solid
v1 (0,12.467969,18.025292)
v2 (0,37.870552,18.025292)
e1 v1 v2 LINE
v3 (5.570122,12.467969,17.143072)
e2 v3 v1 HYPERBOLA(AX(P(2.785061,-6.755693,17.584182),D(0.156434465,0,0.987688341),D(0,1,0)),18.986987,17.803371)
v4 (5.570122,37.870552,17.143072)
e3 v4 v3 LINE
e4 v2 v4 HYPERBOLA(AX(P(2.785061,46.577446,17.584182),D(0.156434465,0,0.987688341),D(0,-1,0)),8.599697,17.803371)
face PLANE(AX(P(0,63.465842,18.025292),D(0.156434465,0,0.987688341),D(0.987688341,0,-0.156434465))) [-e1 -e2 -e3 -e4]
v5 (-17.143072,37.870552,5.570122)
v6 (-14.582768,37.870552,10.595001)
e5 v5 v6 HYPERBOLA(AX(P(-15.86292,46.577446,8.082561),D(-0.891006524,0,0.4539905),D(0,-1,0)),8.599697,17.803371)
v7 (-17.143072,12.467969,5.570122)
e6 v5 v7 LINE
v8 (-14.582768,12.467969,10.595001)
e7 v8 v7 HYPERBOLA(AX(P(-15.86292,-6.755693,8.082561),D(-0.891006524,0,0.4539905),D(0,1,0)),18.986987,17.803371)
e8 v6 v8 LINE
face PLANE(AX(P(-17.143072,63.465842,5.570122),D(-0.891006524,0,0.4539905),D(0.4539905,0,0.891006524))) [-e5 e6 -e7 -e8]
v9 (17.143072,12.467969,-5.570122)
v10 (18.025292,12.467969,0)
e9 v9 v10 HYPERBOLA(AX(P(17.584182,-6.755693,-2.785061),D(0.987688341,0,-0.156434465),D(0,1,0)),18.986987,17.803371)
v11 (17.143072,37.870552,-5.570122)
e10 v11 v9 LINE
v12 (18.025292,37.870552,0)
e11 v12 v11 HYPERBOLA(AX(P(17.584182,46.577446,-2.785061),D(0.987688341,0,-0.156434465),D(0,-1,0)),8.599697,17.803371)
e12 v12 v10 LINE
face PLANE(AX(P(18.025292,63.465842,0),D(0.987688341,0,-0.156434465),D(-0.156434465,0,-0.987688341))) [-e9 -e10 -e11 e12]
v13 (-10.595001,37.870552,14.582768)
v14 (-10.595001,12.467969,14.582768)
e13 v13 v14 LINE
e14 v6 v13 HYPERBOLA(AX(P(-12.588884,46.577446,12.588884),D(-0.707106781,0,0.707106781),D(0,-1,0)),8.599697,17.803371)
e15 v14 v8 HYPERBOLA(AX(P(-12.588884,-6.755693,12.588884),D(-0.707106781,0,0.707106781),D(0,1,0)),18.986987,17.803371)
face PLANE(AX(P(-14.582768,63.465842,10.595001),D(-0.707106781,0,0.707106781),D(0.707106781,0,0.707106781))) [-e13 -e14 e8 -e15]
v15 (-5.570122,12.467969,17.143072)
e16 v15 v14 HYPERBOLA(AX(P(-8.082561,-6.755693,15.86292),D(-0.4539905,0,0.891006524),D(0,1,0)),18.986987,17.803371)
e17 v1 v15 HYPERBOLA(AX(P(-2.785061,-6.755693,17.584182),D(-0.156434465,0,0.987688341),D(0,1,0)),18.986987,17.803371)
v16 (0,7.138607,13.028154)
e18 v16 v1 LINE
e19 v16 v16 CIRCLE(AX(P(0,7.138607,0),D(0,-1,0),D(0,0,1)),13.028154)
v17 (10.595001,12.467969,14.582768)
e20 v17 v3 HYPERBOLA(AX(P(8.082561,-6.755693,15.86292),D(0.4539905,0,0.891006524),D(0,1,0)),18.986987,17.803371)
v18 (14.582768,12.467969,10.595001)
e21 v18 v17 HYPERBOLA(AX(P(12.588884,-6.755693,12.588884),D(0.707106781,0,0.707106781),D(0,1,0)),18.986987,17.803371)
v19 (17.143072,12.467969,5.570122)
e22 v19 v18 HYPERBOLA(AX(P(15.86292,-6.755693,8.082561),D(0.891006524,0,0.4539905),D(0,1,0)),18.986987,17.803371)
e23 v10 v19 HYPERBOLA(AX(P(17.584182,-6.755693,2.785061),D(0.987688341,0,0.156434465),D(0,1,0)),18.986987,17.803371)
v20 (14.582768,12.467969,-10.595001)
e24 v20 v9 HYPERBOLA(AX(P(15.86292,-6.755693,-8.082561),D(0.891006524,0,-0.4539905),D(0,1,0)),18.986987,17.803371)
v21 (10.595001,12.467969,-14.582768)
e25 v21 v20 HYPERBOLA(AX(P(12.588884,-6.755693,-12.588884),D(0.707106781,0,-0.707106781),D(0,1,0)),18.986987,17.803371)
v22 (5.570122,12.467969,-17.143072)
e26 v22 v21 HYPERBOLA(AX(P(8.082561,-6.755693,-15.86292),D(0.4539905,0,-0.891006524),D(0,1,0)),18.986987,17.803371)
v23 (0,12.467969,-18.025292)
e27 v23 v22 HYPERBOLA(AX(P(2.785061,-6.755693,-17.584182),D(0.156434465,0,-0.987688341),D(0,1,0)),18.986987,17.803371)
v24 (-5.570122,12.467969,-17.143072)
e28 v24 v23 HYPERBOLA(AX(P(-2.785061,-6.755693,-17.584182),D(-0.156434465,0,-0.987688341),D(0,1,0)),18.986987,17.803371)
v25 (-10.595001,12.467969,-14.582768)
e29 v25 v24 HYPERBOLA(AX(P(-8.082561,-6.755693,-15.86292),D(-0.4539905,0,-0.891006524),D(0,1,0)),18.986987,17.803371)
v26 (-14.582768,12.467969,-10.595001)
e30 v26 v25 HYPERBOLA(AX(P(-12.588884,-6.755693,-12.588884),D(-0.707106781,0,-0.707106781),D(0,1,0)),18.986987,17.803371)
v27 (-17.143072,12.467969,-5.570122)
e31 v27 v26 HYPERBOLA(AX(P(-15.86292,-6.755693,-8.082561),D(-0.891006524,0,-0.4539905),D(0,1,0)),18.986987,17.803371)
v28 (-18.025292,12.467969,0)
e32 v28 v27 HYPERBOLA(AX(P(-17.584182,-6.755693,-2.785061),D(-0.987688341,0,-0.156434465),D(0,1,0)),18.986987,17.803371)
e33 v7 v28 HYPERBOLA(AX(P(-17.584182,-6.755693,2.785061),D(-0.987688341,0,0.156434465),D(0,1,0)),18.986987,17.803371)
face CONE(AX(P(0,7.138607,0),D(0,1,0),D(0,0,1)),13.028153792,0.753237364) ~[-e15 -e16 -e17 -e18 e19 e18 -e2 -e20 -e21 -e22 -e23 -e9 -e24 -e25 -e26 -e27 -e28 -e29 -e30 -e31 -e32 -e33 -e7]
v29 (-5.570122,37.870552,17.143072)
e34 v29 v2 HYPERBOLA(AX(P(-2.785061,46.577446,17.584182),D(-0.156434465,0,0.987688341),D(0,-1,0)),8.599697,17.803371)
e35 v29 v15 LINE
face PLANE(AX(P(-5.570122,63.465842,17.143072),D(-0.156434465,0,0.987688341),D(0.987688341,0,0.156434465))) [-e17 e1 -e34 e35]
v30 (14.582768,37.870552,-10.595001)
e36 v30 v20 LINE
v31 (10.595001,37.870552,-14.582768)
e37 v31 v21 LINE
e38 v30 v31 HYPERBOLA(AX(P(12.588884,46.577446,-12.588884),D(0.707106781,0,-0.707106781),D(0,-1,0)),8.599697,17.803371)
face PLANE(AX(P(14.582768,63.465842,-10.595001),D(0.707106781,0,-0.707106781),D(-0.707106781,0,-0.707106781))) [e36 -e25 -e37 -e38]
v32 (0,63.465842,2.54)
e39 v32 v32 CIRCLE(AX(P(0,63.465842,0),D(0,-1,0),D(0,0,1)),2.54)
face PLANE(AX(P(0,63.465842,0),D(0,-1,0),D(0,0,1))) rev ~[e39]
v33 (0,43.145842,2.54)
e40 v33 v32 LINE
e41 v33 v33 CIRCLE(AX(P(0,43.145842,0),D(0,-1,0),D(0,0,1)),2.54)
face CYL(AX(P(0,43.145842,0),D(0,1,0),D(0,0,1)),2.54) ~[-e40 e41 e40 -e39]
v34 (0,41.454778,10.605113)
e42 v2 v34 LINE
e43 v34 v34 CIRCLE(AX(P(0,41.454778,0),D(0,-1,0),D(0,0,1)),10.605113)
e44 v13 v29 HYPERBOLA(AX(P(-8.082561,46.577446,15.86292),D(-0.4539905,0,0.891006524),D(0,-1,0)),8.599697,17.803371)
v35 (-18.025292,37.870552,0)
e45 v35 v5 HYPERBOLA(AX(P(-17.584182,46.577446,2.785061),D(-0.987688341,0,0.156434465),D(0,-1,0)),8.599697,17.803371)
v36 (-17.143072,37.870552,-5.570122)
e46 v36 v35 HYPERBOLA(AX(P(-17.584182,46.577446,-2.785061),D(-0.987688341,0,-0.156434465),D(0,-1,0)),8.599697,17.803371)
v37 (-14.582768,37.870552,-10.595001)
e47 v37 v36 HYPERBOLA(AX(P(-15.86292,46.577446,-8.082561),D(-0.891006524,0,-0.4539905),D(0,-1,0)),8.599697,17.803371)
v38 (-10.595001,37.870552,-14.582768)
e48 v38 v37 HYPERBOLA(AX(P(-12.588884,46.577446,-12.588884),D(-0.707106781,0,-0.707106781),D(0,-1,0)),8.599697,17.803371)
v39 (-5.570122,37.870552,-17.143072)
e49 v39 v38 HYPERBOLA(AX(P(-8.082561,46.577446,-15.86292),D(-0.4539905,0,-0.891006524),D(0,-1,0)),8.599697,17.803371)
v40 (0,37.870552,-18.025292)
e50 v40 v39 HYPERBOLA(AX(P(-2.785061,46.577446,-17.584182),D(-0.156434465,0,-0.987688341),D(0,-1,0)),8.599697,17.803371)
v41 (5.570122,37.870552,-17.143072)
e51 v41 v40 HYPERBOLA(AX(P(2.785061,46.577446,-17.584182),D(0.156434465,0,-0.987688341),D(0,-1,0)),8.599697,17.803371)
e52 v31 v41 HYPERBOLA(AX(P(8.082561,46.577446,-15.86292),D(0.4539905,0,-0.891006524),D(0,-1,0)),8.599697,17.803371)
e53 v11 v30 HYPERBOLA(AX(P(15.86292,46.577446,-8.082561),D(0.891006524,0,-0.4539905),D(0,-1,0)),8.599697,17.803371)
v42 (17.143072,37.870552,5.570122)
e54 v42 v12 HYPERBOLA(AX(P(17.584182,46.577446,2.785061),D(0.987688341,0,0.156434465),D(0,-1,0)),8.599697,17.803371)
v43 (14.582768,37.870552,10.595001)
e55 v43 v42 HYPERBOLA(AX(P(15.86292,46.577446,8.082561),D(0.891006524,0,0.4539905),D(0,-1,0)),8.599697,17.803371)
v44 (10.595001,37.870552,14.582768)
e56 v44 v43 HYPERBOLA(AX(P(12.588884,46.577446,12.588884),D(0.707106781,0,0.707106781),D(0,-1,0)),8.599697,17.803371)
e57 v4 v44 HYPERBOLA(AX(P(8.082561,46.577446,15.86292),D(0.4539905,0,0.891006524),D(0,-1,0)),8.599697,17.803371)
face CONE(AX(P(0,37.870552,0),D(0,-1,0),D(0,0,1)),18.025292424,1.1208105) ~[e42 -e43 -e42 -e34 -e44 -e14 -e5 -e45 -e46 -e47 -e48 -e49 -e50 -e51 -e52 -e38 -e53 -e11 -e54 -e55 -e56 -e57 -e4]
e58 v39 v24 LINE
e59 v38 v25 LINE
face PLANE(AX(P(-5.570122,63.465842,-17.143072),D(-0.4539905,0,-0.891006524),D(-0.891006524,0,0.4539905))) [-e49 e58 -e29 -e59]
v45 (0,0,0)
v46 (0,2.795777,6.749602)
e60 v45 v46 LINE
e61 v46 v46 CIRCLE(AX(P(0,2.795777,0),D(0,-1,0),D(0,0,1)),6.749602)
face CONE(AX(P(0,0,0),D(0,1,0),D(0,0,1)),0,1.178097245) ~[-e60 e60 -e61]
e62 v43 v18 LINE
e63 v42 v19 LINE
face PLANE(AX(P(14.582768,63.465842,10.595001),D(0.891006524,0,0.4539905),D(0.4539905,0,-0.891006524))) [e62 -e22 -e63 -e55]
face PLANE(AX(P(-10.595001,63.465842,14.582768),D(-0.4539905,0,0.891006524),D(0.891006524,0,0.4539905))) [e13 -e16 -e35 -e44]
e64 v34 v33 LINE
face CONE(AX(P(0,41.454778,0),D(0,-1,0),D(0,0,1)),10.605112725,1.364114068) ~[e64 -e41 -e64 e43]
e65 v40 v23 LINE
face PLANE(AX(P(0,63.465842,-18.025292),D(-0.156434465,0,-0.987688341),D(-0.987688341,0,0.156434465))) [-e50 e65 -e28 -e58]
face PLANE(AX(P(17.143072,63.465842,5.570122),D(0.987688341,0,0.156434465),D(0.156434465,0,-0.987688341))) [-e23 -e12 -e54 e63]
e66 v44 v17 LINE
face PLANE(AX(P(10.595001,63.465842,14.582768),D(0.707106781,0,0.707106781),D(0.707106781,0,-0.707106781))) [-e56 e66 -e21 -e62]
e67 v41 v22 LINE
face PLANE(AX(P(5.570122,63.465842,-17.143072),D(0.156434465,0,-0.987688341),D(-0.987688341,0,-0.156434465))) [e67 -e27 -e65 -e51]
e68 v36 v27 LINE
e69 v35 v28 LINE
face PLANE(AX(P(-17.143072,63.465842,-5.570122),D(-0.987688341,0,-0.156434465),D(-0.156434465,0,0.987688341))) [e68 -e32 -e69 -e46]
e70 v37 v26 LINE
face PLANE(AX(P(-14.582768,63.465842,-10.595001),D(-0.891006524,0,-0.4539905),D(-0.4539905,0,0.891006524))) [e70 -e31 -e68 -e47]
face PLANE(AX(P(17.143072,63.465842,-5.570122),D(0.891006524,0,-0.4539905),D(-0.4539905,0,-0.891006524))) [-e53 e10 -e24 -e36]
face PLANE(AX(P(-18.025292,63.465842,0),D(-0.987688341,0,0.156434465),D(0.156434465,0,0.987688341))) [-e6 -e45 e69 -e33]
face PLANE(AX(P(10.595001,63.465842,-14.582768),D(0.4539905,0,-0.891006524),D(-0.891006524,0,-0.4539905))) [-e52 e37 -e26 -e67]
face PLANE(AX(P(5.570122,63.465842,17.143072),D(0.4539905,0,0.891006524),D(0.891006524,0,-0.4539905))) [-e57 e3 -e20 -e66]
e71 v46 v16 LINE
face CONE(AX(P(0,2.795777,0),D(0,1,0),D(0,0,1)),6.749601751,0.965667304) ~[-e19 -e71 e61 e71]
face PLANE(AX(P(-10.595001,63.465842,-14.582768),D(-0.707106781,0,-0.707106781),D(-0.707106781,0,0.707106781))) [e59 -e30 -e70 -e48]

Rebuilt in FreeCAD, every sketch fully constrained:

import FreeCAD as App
import Part
import Sketcher
from FreeCAD import Vector
Q = App.Units.Quantity

doc = App.newDocument("Part")
body = doc.addObject("PartDesign::Body", "Body")

# Sketch on XY plane
sketch1 = body.newObject("Sketcher::SketchObject", "Sketch")
sketch1.AttachmentSupport = (doc.getObject("XY_Plane"), [""])
sketch1.MapMode = "FlatFace"
sketch1.addGeometry(Part.LineSegment(Vector(0, 0, 0), Vector(6.749602, 2.795777, 0)), False)
sketch1.addGeometry(Part.LineSegment(Vector(6.749602, 2.795777, 0), Vector(13.028154, 7.138607, 0)), False)
sketch1.addGeometry(Part.LineSegment(Vector(13.028154, 7.138607, 0), Vector(18.025292, 12.467969, 0)), False)
sketch1.addGeometry(Part.LineSegment(Vector(18.025292, 12.467969, 0), Vector(18.025292, 37.870552, 0)), False)
sketch1.addGeometry(Part.LineSegment(Vector(18.025292, 37.870552, 0), Vector(10.605113, 41.454778, 0)), False)
sketch1.addGeometry(Part.LineSegment(Vector(10.605113, 41.454778, 0), Vector(2.54, 43.145842, 0)), False)
sketch1.addGeometry(Part.LineSegment(Vector(2.54, 43.145842, 0), Vector(2.54, 63.465842, 0)), False)
sketch1.addGeometry(Part.LineSegment(Vector(2.54, 63.465842, 0), Vector(0, 63.465842, 0)), False)
sketch1.addGeometry(Part.LineSegment(Vector(0, 63.465842, 0), Vector(0, 0, 0)), False)
sketch1.addConstraint(Sketcher.Constraint("Coincident", 0, 2, 1, 1))
sketch1.addConstraint(Sketcher.Constraint("Coincident", 1, 2, 2, 1))
sketch1.addConstraint(Sketcher.Constraint("Coincident", 2, 2, 3, 1))
sketch1.addConstraint(Sketcher.Constraint("Coincident", 3, 2, 4, 1))
sketch1.addConstraint(Sketcher.Constraint("Coincident", 4, 2, 5, 1))
sketch1.addConstraint(Sketcher.Constraint("Coincident", 5, 2, 6, 1))
sketch1.addConstraint(Sketcher.Constraint("Coincident", 6, 2, 7, 1))
sketch1.addConstraint(Sketcher.Constraint("Coincident", 7, 2, 8, 1))
sketch1.addConstraint(Sketcher.Constraint("Coincident", 8, 2, 0, 1))
sketch1.addConstraint(Sketcher.Constraint("Vertical", 3))
sketch1.addConstraint(Sketcher.Constraint("Vertical", 6))
sketch1.addConstraint(Sketcher.Constraint("Horizontal", 7))
sketch1.addConstraint(Sketcher.Constraint("Vertical", 8))
sketch1.addConstraint(Sketcher.Constraint("Coincident", 8, 2, -1, 1))
sketch1.addConstraint(Sketcher.Constraint("Equal", 0, 2))
sketch1.addConstraint(Sketcher.Constraint("Equal", 4, 5))
sketch1.addConstraint(Sketcher.Constraint("DistanceX", 7, 2, 7, 1, Q("0.1 in")))
sketch1.addConstraint(Sketcher.Constraint("DistanceY", 6, 1, 6, 2, Q("0.8 in")))
sketch1.addConstraint(Sketcher.Constraint("Angle", 0, Q("22.5 deg")))
sketch1.addConstraint(Sketcher.Constraint("DistanceY", 8, 2, 8, 1, Q("63.465842 mm")))
sketch1.addConstraint(Sketcher.Constraint("DistanceX", -1, 1, 0, 2, Q("6.749602 mm")))
sketch1.addConstraint(Sketcher.Constraint("DistanceY", 0, 2, 4, 2, Q("38.659001 mm")))
sketch1.addConstraint(Sketcher.Constraint("Distance", 1, Q("7.63416 mm")))
sketch1.addConstraint(Sketcher.Constraint("DistanceY", 3, 1, 3, 2, Q("25.402583 mm")))
sketch1.addConstraint(Sketcher.Constraint("DistanceY", -1, 1, 2, 2, Q("12.467969 mm")))
sketch1.addConstraint(Sketcher.Constraint("DistanceY", 0, 2, 1, 2, Q("4.342831 mm")))
revolution = body.newObject("PartDesign::Revolution", "Revolution")
revolution.Profile = sketch1
revolution.ReferenceAxis = (sketch1, ["V_Axis"])
revolution.Angle = 360

# Sketch on XZ plane
sketch2 = body.newObject("Sketcher::SketchObject", "Sketch001")
sketch2.AttachmentSupport = (doc.getObject("XZ_Plane"), [""])
sketch2.MapMode = "FlatFace"
sketch2.AttachmentOffset = App.Placement(Vector(0, 0, -63.465842), App.Rotation())
sketch2.addGeometry(Part.LineSegment(Vector(-27.166, -27.166, 0), Vector(-27.166, 27.166, 0)), False)
sketch2.addGeometry(Part.LineSegment(Vector(-27.166, 27.166, 0), Vector(27.166, 27.166, 0)), False)
sketch2.addGeometry(Part.LineSegment(Vector(27.166, 27.166, 0), Vector(27.166, -27.166, 0)), False)
sketch2.addGeometry(Part.LineSegment(Vector(27.166, -27.166, 0), Vector(-27.166, -27.166, 0)), False)
sketch2.addGeometry(Part.LineSegment(Vector(-14.582768, -10.595001, 0), Vector(-10.595001, -14.582768, 0)), False)
sketch2.addGeometry(Part.LineSegment(Vector(-10.595001, -14.582768, 0), Vector(-5.570122, -17.143072, 0)), False)
sketch2.addGeometry(Part.LineSegment(Vector(-5.570122, -17.143072, 0), Vector(0, -18.025292, 0)), False)
sketch2.addGeometry(Part.LineSegment(Vector(0, -18.025292, 0), Vector(5.570122, -17.143072, 0)), False)
sketch2.addGeometry(Part.LineSegment(Vector(5.570122, -17.143072, 0), Vector(10.595001, -14.582768, 0)), False)
sketch2.addGeometry(Part.LineSegment(Vector(10.595001, -14.582768, 0), Vector(14.582768, -10.595001, 0)), False)
sketch2.addGeometry(Part.LineSegment(Vector(14.582768, -10.595001, 0), Vector(17.143072, -5.570122, 0)), False)
sketch2.addGeometry(Part.LineSegment(Vector(17.143072, -5.570122, 0), Vector(18.025292, 0, 0)), False)
sketch2.addGeometry(Part.LineSegment(Vector(18.025292, 0, 0), Vector(17.143072, 5.570122, 0)), False)
sketch2.addGeometry(Part.LineSegment(Vector(17.143072, 5.570122, 0), Vector(14.582768, 10.595001, 0)), False)
sketch2.addGeometry(Part.LineSegment(Vector(14.582768, 10.595001, 0), Vector(10.595001, 14.582768, 0)), False)
sketch2.addGeometry(Part.LineSegment(Vector(10.595001, 14.582768, 0), Vector(5.570122, 17.143072, 0)), False)
sketch2.addGeometry(Part.LineSegment(Vector(5.570122, 17.143072, 0), Vector(0, 18.025292, 0)), False)
sketch2.addGeometry(Part.LineSegment(Vector(0, 18.025292, 0), Vector(-5.570122, 17.143072, 0)), False)
sketch2.addGeometry(Part.LineSegment(Vector(-5.570122, 17.143072, 0), Vector(-10.595001, 14.582768, 0)), False)
sketch2.addGeometry(Part.LineSegment(Vector(-10.595001, 14.582768, 0), Vector(-14.582768, 10.595001, 0)), False)
sketch2.addGeometry(Part.LineSegment(Vector(-14.582768, 10.595001, 0), Vector(-17.143072, 5.570122, 0)), False)
sketch2.addGeometry(Part.LineSegment(Vector(-17.143072, 5.570122, 0), Vector(-18.025292, 0, 0)), False)
sketch2.addGeometry(Part.LineSegment(Vector(-18.025292, 0, 0), Vector(-17.143072, -5.570122, 0)), False)
sketch2.addGeometry(Part.LineSegment(Vector(-17.143072, -5.570122, 0), Vector(-14.582768, -10.595001, 0)), False)
sketch2.addConstraint(Sketcher.Constraint("Coincident", 0, 2, 1, 1))
sketch2.addConstraint(Sketcher.Constraint("Coincident", 1, 2, 2, 1))
sketch2.addConstraint(Sketcher.Constraint("Coincident", 2, 2, 3, 1))
sketch2.addConstraint(Sketcher.Constraint("Coincident", 3, 2, 0, 1))
sketch2.addConstraint(Sketcher.Constraint("Coincident", 4, 2, 5, 1))
sketch2.addConstraint(Sketcher.Constraint("Coincident", 5, 2, 6, 1))
sketch2.addConstraint(Sketcher.Constraint("Coincident", 6, 2, 7, 1))
sketch2.addConstraint(Sketcher.Constraint("Coincident", 7, 2, 8, 1))
sketch2.addConstraint(Sketcher.Constraint("Coincident", 8, 2, 9, 1))
sketch2.addConstraint(Sketcher.Constraint("Coincident", 9, 2, 10, 1))
sketch2.addConstraint(Sketcher.Constraint("Coincident", 10, 2, 11, 1))
sketch2.addConstraint(Sketcher.Constraint("Coincident", 11, 2, 12, 1))
sketch2.addConstraint(Sketcher.Constraint("Coincident", 12, 2, 13, 1))
sketch2.addConstraint(Sketcher.Constraint("Coincident", 13, 2, 14, 1))
sketch2.addConstraint(Sketcher.Constraint("Coincident", 14, 2, 15, 1))
sketch2.addConstraint(Sketcher.Constraint("Coincident", 15, 2, 16, 1))
sketch2.addConstraint(Sketcher.Constraint("Coincident", 16, 2, 17, 1))
sketch2.addConstraint(Sketcher.Constraint("Coincident", 17, 2, 18, 1))
sketch2.addConstraint(Sketcher.Constraint("Coincident", 18, 2, 19, 1))
sketch2.addConstraint(Sketcher.Constraint("Coincident", 19, 2, 20, 1))
sketch2.addConstraint(Sketcher.Constraint("Coincident", 20, 2, 21, 1))
sketch2.addConstraint(Sketcher.Constraint("Coincident", 21, 2, 22, 1))
sketch2.addConstraint(Sketcher.Constraint("Coincident", 22, 2, 23, 1))
sketch2.addConstraint(Sketcher.Constraint("Coincident", 23, 2, 4, 1))
sketch2.addConstraint(Sketcher.Constraint("Vertical", 0))
sketch2.addConstraint(Sketcher.Constraint("Horizontal", 1))
sketch2.addConstraint(Sketcher.Constraint("Vertical", 2))
sketch2.addConstraint(Sketcher.Constraint("Horizontal", 3))
sketch2.addConstraint(Sketcher.Constraint("Symmetric", 0, 2, 2, 2, -1, 1))
sketch2.addConstraint(Sketcher.Constraint("Symmetric", 4, 2, 14, 2, -1, 1))
sketch2.addConstraint(Sketcher.Constraint("Symmetric", 5, 2, 15, 2, -1, 1))
sketch2.addConstraint(Sketcher.Constraint("Symmetric", 6, 2, 16, 2, -1, 1))
sketch2.addConstraint(Sketcher.Constraint("Symmetric", 7, 2, 17, 2, -1, 1))
sketch2.addConstraint(Sketcher.Constraint("Symmetric", 8, 2, 18, 2, -1, 1))
sketch2.addConstraint(Sketcher.Constraint("Symmetric", 9, 2, 19, 2, -1, 1))
sketch2.addConstraint(Sketcher.Constraint("Symmetric", 10, 2, 20, 2, -1, 1))
sketch2.addConstraint(Sketcher.Constraint("Symmetric", 11, 2, 21, 2, -1, 1))
sketch2.addConstraint(Sketcher.Constraint("Symmetric", 12, 2, 22, 2, -1, 1))
sketch2.addConstraint(Sketcher.Constraint("Symmetric", 13, 2, 23, 2, -1, 1))
sketch2.addConstraint(Sketcher.Constraint("Symmetric", 5, 2, 7, 2, -2))
sketch2.addConstraint(Sketcher.Constraint("Symmetric", 4, 2, 8, 2, -2))
sketch2.addConstraint(Sketcher.Constraint("Symmetric", 13, 2, 19, 2, -2))
sketch2.addConstraint(Sketcher.Constraint("Symmetric", 12, 2, 20, 2, -2))
sketch2.addConstraint(Sketcher.Constraint("PointOnObject", 6, 2, -2))
sketch2.addConstraint(Sketcher.Constraint("PointOnObject", 11, 2, -1))
sketch2.addConstraint(Sketcher.Constraint("Perpendicular", 4, 9))
sketch2.addConstraint(Sketcher.Constraint("Perpendicular", 5, 10))
sketch2.addConstraint(Sketcher.Constraint("Perpendicular", 6, 11))
sketch2.addConstraint(Sketcher.Constraint("Equal", 3, 0))
sketch2.addConstraint(Sketcher.Constraint("Equal", 4, 5))
sketch2.addConstraint(Sketcher.Constraint("Equal", 5, 6))
sketch2.addConstraint(Sketcher.Constraint("Equal", 9, 10))
sketch2.addConstraint(Sketcher.Constraint("Equal", 10, 11))
sketch2.addConstraint(Sketcher.Constraint("Angle", 5, Q("-27 deg")))
sketch2.addConstraint(Sketcher.Constraint("Angle", 6, Q("-9 deg")))
sketch2.addConstraint(Sketcher.Constraint("DistanceX", 1, 1, 1, 2, Q("54.332 mm")))
sketch2.addConstraint(Sketcher.Constraint("DistanceX", 4, 2, -1, 1, Q("10.595001 mm")))
pocket1 = body.newObject("PartDesign::Pocket", "Pocket")
pocket1.Profile = sketch2
pocket1.Type = "ThroughAll"
pocket1.Reversed = True

doc.recompute()
